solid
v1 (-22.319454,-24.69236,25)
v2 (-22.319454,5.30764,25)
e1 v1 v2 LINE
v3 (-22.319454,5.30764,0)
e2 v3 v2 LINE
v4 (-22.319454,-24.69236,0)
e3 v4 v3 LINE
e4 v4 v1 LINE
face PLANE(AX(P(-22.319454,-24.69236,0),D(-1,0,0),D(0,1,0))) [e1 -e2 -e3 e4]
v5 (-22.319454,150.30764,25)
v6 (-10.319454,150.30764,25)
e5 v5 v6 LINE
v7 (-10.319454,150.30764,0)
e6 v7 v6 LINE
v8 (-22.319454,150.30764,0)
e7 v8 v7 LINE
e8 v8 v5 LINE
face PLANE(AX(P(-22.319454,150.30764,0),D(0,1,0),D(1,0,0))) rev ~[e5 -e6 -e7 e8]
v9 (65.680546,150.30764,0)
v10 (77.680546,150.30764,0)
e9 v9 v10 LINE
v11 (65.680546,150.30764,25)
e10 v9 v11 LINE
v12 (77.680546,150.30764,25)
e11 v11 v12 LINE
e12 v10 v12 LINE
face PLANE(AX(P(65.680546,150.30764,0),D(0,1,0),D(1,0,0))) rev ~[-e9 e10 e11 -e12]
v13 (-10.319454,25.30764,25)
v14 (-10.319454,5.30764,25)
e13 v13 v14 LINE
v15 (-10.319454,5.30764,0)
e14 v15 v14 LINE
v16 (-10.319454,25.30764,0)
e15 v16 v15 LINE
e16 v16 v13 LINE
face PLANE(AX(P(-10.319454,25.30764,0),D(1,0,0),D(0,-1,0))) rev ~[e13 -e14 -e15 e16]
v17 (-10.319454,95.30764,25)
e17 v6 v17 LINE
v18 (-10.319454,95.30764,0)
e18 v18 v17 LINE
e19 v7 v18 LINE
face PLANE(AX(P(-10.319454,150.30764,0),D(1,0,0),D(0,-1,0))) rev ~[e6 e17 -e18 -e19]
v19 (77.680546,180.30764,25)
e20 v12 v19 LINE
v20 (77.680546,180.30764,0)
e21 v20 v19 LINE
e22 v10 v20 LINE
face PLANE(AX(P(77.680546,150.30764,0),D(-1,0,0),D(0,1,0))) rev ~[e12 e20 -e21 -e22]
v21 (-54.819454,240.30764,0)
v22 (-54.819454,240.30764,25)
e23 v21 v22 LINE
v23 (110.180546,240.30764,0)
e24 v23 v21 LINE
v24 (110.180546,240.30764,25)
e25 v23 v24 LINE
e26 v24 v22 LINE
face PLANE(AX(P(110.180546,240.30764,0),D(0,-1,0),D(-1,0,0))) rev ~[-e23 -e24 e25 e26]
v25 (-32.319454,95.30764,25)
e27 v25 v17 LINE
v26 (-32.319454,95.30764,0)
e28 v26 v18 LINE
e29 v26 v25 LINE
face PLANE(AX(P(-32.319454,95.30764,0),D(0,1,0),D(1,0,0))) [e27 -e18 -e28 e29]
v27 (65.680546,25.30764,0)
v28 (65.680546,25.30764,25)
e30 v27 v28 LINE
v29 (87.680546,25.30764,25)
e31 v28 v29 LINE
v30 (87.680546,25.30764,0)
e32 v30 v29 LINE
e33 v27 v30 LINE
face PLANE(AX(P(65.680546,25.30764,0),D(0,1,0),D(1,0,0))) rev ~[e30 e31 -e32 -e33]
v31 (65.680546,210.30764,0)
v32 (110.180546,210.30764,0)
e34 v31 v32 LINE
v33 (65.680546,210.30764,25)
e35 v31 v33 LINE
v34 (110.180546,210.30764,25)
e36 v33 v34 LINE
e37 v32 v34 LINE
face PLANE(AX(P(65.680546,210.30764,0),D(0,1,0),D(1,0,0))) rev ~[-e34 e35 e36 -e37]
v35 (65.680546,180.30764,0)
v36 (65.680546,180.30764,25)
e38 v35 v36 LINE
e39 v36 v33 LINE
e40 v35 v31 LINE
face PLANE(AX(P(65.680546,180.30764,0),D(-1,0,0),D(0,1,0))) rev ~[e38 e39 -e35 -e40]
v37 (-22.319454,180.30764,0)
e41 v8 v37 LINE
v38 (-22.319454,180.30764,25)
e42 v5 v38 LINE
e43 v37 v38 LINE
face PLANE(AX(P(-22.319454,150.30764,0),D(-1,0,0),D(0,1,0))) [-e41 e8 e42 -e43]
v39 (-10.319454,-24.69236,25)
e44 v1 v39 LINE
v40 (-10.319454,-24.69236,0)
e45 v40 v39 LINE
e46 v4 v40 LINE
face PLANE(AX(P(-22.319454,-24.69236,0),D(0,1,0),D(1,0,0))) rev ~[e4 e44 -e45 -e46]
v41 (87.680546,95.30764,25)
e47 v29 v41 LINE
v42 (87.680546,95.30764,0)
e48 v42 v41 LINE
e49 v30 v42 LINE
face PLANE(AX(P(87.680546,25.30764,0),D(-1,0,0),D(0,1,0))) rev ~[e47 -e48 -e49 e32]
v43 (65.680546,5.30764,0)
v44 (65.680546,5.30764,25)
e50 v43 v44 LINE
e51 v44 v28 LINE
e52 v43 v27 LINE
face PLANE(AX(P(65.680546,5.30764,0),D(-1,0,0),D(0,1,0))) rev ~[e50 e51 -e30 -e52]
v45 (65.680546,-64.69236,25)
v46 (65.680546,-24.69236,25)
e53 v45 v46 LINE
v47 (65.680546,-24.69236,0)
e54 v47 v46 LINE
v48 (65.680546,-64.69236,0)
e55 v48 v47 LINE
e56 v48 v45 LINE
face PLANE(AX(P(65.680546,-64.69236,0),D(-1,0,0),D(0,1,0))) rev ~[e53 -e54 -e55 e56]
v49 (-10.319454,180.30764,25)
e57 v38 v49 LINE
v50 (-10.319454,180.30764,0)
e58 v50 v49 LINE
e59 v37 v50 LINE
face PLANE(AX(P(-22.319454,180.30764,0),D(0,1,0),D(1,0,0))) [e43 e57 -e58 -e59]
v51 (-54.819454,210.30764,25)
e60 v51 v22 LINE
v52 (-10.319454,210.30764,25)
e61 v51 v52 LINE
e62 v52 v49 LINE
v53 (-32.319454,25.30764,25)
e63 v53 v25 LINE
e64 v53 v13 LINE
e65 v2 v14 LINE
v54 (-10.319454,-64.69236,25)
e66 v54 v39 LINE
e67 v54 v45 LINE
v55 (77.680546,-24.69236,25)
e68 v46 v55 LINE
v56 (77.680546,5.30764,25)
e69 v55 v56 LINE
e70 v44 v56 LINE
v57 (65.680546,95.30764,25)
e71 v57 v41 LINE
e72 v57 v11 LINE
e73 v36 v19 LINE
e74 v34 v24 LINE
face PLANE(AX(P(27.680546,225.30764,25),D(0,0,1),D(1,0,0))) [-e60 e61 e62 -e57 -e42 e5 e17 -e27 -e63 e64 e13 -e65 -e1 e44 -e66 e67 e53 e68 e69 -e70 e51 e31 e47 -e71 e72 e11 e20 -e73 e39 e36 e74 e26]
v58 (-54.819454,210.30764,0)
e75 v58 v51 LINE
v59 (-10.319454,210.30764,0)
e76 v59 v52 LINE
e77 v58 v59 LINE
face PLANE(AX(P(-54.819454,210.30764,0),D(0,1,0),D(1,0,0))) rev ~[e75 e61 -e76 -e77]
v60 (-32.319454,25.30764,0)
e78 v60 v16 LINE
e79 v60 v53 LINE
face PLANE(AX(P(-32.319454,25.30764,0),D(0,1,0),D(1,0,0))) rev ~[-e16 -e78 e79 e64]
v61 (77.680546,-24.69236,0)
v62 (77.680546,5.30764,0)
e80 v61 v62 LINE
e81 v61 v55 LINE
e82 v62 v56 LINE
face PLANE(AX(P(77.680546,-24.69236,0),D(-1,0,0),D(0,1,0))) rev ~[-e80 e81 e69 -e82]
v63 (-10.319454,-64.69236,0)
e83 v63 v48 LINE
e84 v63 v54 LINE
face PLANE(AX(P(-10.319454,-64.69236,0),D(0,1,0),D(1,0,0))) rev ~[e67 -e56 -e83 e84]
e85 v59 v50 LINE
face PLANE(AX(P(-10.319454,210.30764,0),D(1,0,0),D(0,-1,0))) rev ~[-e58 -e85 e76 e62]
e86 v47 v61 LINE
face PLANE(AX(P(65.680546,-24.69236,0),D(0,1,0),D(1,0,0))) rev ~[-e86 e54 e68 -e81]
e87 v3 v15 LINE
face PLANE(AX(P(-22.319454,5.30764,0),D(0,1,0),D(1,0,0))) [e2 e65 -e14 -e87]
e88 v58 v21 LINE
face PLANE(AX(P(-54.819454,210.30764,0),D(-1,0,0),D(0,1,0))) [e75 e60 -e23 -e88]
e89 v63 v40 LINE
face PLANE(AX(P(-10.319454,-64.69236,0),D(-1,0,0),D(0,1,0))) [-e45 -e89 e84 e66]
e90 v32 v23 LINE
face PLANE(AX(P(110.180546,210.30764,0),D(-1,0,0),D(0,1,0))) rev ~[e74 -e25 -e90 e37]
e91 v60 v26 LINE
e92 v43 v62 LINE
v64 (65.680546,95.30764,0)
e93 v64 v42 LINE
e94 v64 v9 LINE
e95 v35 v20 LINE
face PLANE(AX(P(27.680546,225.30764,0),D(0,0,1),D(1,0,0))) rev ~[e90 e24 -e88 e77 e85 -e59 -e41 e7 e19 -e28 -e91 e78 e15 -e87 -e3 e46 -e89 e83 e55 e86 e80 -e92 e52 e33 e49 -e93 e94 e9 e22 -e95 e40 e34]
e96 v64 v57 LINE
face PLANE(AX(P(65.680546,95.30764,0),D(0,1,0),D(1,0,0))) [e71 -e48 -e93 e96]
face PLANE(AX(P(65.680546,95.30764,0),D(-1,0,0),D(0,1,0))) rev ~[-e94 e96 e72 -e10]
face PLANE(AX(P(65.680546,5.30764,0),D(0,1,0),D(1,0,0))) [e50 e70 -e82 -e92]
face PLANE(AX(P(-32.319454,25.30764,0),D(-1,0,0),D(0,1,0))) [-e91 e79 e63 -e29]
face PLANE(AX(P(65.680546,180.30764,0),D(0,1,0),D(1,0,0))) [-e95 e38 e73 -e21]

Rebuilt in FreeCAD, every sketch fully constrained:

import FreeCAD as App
import Part
import Sketcher

V = App.Vector

doc = App.newDocument("Part")
body = doc.addObject("PartDesign::Body", "Body")

sketch1 = body.newObject("Sketcher::SketchObject", "Sketch")
sketch1.AttachmentSupport = (doc.getObject("XY_Plane"), [""])
sketch1.MapMode = "FlatFace"
sketch1.addGeometry(Part.LineSegment(V(-54.819454, 240.30764, 0), V(-54.819454, 210.30764, 0)), False)
sketch1.addGeometry(Part.LineSegment(V(-54.819454, 210.30764, 0), V(-10.319454, 210.30764, 0)), False)
sketch1.addGeometry(Part.LineSegment(V(-10.319454, 210.30764, 0), V(-10.319454, 180.30764, 0)), False)
sketch1.addGeometry(Part.LineSegment(V(-10.319454, 180.30764, 0), V(-22.319454, 180.30764, 0)), False)
sketch1.addGeometry(Part.LineSegment(V(-22.319454, 180.30764, 0), V(-22.319454, 150.30764, 0)), False)
sketch1.addGeometry(Part.LineSegment(V(-22.319454, 150.30764, 0), V(-10.319454, 150.30764, 0)), False)
sketch1.addGeometry(Part.LineSegment(V(-10.319454, 150.30764, 0), V(-10.319454, 95.30764, 0)), False)
sketch1.addGeometry(Part.LineSegment(V(-10.319454, 95.30764, 0), V(-32.319454, 95.30764, 0)), False)
sketch1.addGeometry(Part.LineSegment(V(-32.319454, 95.30764, 0), V(-32.319454, 25.30764, 0)), False)
sketch1.addGeometry(Part.LineSegment(V(-32.319454, 25.30764, 0), V(-10.319454, 25.30764, 0)), False)
sketch1.addGeometry(Part.LineSegment(V(-10.319454, 25.30764, 0), V(-10.319454, 5.30764, 0)), False)
sketch1.addGeometry(Part.LineSegment(V(-10.319454, 5.30764, 0), V(-22.319454, 5.30764, 0)), False)
sketch1.addGeometry(Part.LineSegment(V(-22.319454, 5.30764, 0), V(-22.319454, -24.69236, 0)), False)
sketch1.addGeometry(Part.LineSegment(V(-22.319454, -24.69236, 0), V(-10.319454, -24.69236, 0)), False)
sketch1.addGeometry(Part.LineSegment(V(-10.319454, -24.69236, 0), V(-10.319454, -64.69236, 0)), False)
sketch1.addGeometry(Part.LineSegment(V(-10.319454, -64.69236, 0), V(65.680546, -64.69236, 0)), False)
sketch1.addGeometry(Part.LineSegment(V(65.680546, -64.69236, 0), V(65.680546, -24.69236, 0)), False)
sketch1.addGeometry(Part.LineSegment(V(65.680546, -24.69236, 0), V(77.680546, -24.69236, 0)), False)
sketch1.addGeometry(Part.LineSegment(V(77.680546, -24.69236, 0), V(77.680546, 5.30764, 0)), False)
sketch1.addGeometry(Part.LineSegment(V(77.680546, 5.30764, 0), V(65.680546, 5.30764, 0)), False)
sketch1.addGeometry(Part.LineSegment(V(65.680546, 5.30764, 0), V(65.680546, 25.30764, 0)), False)
sketch1.addGeometry(Part.LineSegment(V(65.680546, 25.30764, 0), V(87.680546, 25.30764, 0)), False)
sketch1.addGeometry(Part.LineSegment(V(87.680546, 25.30764, 0), V(87.680546, 95.30764, 0)), False)
sketch1.addGeometry(Part.LineSegment(V(87.680546, 95.30764, 0), V(65.680546, 95.30764, 0)), False)
sketch1.addGeometry(Part.LineSegment(V(65.680546, 95.30764, 0), V(65.680546, 150.30764, 0)), False)
sketch1.addGeometry(Part.LineSegment(V(65.680546, 150.30764, 0), V(77.680546, 150.30764, 0)), False)
sketch1.addGeometry(Part.LineSegment(V(77.680546, 150.30764, 0), V(77.680546, 180.30764, 0)), False)
sketch1.addGeometry(Part.LineSegment(V(77.680546, 180.30764, 0), V(65.680546, 180.30764, 0)), False)
sketch1.addGeometry(Part.LineSegment(V(65.680546, 180.30764, 0), V(65.680546, 210.30764, 0)), False)
sketch1.addGeometry(Part.LineSegment(V(65.680546, 210.30764, 0), V(110.180546, 210.30764, 0)), False)
sketch1.addGeometry(Part.LineSegment(V(110.180546, 210.30764, 0), V(110.180546, 240.30764, 0)), False)
sketch1.addGeometry(Part.LineSegment(V(110.180546, 240.30764, 0), V(-54.819454, 240.30764, 0)), False)
sketch1.addConstraint(Sketcher.Constraint("Coincident", 0, 2, 1, 1))
sketch1.addConstraint(Sketcher.Constraint("Coincident", 1, 2, 2, 1))
sketch1.addConstraint(Sketcher.Constraint("Coincident", 2, 2, 3, 1))
sketch1.addConstraint(Sketcher.Constraint("Coincident", 3, 2, 4, 1))
sketch1.addConstraint(Sketcher.Constraint("Coincident", 4, 2, 5, 1))
sketch1.addConstraint(Sketcher.Constraint("Coincident", 5, 2, 6, 1))
sketch1.addConstraint(Sketcher.Constraint("Coincident", 6, 2, 7, 1))
sketch1.addConstraint(Sketcher.Constraint("Coincident", 7, 2, 8, 1))
sketch1.addConstraint(Sketcher.Constraint("Coincident", 8, 2, 9, 1))
sketch1.addConstraint(Sketcher.Constraint("Coincident", 9, 2, 10, 1))
sketch1.addConstraint(Sketcher.Constraint("Coincident", 10, 2, 11, 1))
sketch1.addConstraint(Sketcher.Constraint("Coincident", 11, 2, 12, 1))
sketch1.addConstraint(Sketcher.Constraint("Coincident", 12, 2, 13, 1))
sketch1.addConstraint(Sketcher.Constraint("Coincident", 13, 2, 14, 1))
sketch1.addConstraint(Sketcher.Constraint("Coincident", 14, 2, 15, 1))
sketch1.addConstraint(Sketcher.Constraint("Coincident", 15, 2, 16, 1))
sketch1.addConstraint(Sketcher.Constraint("Coincident", 16, 2, 17, 1))
sketch1.addConstraint(Sketcher.Constraint("Coincident", 17, 2, 18, 1))
sketch1.addConstraint(Sketcher.Constraint("Coincident", 18, 2, 19, 1))
sketch1.addConstraint(Sketcher.Constraint("Coincident", 19, 2, 20, 1))
sketch1.addConstraint(Sketcher.Constraint("Coincident", 20, 2, 21, 1))
sketch1.addConstraint(Sketcher.Constraint("Coincident", 21, 2, 22, 1))
sketch1.addConstraint(Sketcher.Constraint("Coincident", 22, 2, 23, 1))
sketch1.addConstraint(Sketcher.Constraint("Coincident", 23, 2, 24, 1))
sketch1.addConstraint(Sketcher.Constraint("Coincident", 24, 2, 25, 1))
sketch1.addConstraint(Sketcher.Constraint("Coincident", 25, 2, 26, 1))
sketch1.addConstraint(Sketcher.Constraint("Coincident", 26, 2, 27, 1))
sketch1.addConstraint(Sketcher.Constraint("Coincident", 27, 2, 28, 1))
sketch1.addConstraint(Sketcher.Constraint("Coincident", 28, 2, 29, 1))
sketch1.addConstraint(Sketcher.Constraint("Coincident", 29, 2, 30, 1))
sketch1.addConstraint(Sketcher.Constraint("Coincident", 30, 2, 31, 1))
sketch1.addConstraint(Sketcher.Constraint("Coincident", 31, 2, 0, 1))
sketch1.addConstraint(Sketcher.Constraint("Vertical", 0))
sketch1.addConstraint(Sketcher.Constraint("Horizontal", 1))
sketch1.addConstraint(Sketcher.Constraint("Vertical", 2))
sketch1.addConstraint(Sketcher.Constraint("Horizontal", 3))
sketch1.addConstraint(Sketcher.Constraint("Vertical", 4))
sketch1.addConstraint(Sketcher.Constraint("Horizontal", 5))
sketch1.addConstraint(Sketcher.Constraint("Vertical", 6))
sketch1.addConstraint(Sketcher.Constraint("Horizontal", 7))
sketch1.addConstraint(Sketcher.Constraint("Vertical", 8))
sketch1.addConstraint(Sketcher.Constraint("Horizontal", 9))
sketch1.addConstraint(Sketcher.Constraint("Vertical", 10))
sketch1.addConstraint(Sketcher.Constraint("Horizontal", 11))
sketch1.addConstraint(Sketcher.Constraint("Vertical", 12))
sketch1.addConstraint(Sketcher.Constraint("Horizontal", 13))
sketch1.addConstraint(Sketcher.Constraint("Vertical", 14))
sketch1.addConstraint(Sketcher.Constraint("Horizontal", 15))
sketch1.addConstraint(Sketcher.Constraint("Vertical", 16))
sketch1.addConstraint(Sketcher.Constraint("Horizontal", 17))
sketch1.addConstraint(Sketcher.Constraint("Vertical", 18))
sketch1.addConstraint(Sketcher.Constraint("Horizontal", 19))
sketch1.addConstraint(Sketcher.Constraint("Vertical", 20))
sketch1.addConstraint(Sketcher.Constraint("Horizontal", 21))
sketch1.addConstraint(Sketcher.Constraint("Vertical", 22))
sketch1.addConstraint(Sketcher.Constraint("Horizontal", 23))
sketch1.addConstraint(Sketcher.Constraint("Vertical", 24))
sketch1.addConstraint(Sketcher.Constraint("Horizontal", 25))
sketch1.addConstraint(Sketcher.Constraint("Vertical", 26))
sketch1.addConstraint(Sketcher.Constraint("Horizontal", 27))
sketch1.addConstraint(Sketcher.Constraint("Vertical", 28))
sketch1.addConstraint(Sketcher.Constraint("Horizontal", 29))
sketch1.addConstraint(Sketcher.Constraint("Vertical", 30))
sketch1.addConstraint(Sketcher.Constraint("Horizontal", 31))
sketch1.addConstraint(Sketcher.Constraint("Horizontal", 13, 2, 16, 2))
sketch1.addConstraint(Sketcher.Constraint("Horizontal", 11, 2, 18, 2))
sketch1.addConstraint(Sketcher.Constraint("Horizontal", 9, 2, 20, 2))
sketch1.addConstraint(Sketcher.Constraint("Horizontal", 7, 2, 22, 2))
sketch1.addConstraint(Sketcher.Constraint("Horizontal", 5, 2, 24, 2))
sketch1.addConstraint(Sketcher.Constraint("Horizontal", 3, 2, 26, 2))
sketch1.addConstraint(Sketcher.Constraint("Horizontal", 1, 2, 28, 2))
sketch1.addConstraint(Sketcher.Constraint("Vertical", 2, 2, 5, 2))
sketch1.addConstraint(Sketcher.Constraint("Vertical", 6, 2, 9, 2))
sketch1.addConstraint(Sketcher.Constraint("Vertical", 4, 2, 11, 2))
sketch1.addConstraint(Sketcher.Constraint("Vertical", 10, 2, 13, 2))
sketch1.addConstraint(Sketcher.Constraint("Vertical", 16, 2, 19, 2))
sketch1.addConstraint(Sketcher.Constraint("Vertical", 20, 2, 23, 2))
sketch1.addConstraint(Sketcher.Constraint("Vertical", 18, 2, 25, 2))
sketch1.addConstraint(Sketcher.Constraint("Vertical", 24, 2, 27, 2))
sketch1.addConstraint(Sketcher.Constraint("Equal", 13, 17))
sketch1.addConstraint(Sketcher.Constraint("Equal", 9, 21))
sketch1.addConstraint(Sketcher.Constraint("Equal", 1, 29))
sketch1.addConstraint(Sketcher.Constraint("Equal", 0, 2))
sketch1.addConstraint(Sketcher.Constraint("Equal", 2, 4))
sketch1.addConstraint(Sketcher.Constraint("Equal", 4, 12))
sketch1.addConstraint(Sketcher.Constraint("DistanceX", 3, 2, 3, 1, 12.0))
sketch1.addConstraint(Sketcher.Constraint("DistanceX", 7, 2, 7, 1, 22.0))
sketch1.addConstraint(Sketcher.Constraint("DistanceX", 15, 1, 15, 2, 76.0))
sketch1.addConstraint(Sketcher.Constraint("DistanceX", 31, 2, 31, 1, 165.0))
sketch1.addConstraint(Sketcher.Constraint("DistanceY", 0, 2, 0, 1, 30.0))
sketch1.addConstraint(Sketcher.Constraint("DistanceY", 6, 2, 6, 1, 55.0))
sketch1.addConstraint(Sketcher.Constraint("DistanceY", 8, 2, 8, 1, 70.0))
sketch1.addConstraint(Sketcher.Constraint("DistanceY", 10, 2, 10, 1, 20.0))
sketch1.addConstraint(Sketcher.Constraint("DistanceY", 14, 2, 14, 1, 40.0))
sketch1.addConstraint(Sketcher.Constraint("DistanceY", -1, 1, 0, 2, 210.30764))
sketch1.addConstraint(Sketcher.Constraint("DistanceX", 0, 2, -1, 1, 54.819454))
pad1 = body.newObject("PartDesign::Pad", "Pad")
pad1.Profile = sketch1
pad1.Length = 25

doc.recompute()
